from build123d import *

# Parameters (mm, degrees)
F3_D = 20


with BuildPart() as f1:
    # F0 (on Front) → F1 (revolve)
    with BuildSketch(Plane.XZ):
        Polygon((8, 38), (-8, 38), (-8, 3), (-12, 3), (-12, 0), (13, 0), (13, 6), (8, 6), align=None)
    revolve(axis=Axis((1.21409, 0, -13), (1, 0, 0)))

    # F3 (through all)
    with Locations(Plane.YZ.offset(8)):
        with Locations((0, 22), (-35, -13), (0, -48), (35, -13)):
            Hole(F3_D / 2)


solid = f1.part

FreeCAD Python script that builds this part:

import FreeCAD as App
import Part
import Sketcher
from FreeCAD import Vector
Q = App.Units.Quantity


def add_polygon(sketch, points):
    """Adds a closed chain of lines whose ends are joined by coincident constraints."""
    first, n = sketch.GeometryCount, len(points)
    for a, b in zip(points, points[1:] + points[:1]):
        sketch.addGeometry(Part.LineSegment(App.Vector(*a, 0), App.Vector(*b, 0)), False)
    for i in range(n):
        sketch.addConstraint(Sketcher.Constraint("Coincident", first + i, 2, first + (i + 1) % n, 1))

doc = App.newDocument("Part")
body = doc.addObject("PartDesign::Body", "Body")

# Sketch on XZ plane
sketch1 = doc.addObject("Sketcher::SketchObject", "Sketch")
body.addObject(sketch1)
sketch1.AttachmentSupport = (doc.XZ_Plane, [""])
sketch1.MapMode = "FlatFace"
add_polygon(sketch1, [(8, 38), (-8, 38), (-8, 3), (-12, 3), (-12, 0), (13, 0), (13, 6), (8, 6)])  # lines 0-7
sketch1.addGeometry(Part.LineSegment(Vector(-12, -13, 0), Vector(13, -13, 0)), True)  # axis
sketch1.addConstraint([
    Sketcher.Constraint("Horizontal", 0),
    Sketcher.Constraint("Vertical", 1),
    Sketcher.Constraint("Horizontal", 2),
    Sketcher.Constraint("Vertical", 3),
    Sketcher.Constraint("Horizontal", 4),
    Sketcher.Constraint("Vertical", 5),
    Sketcher.Constraint("Horizontal", 6),
    Sketcher.Constraint("Vertical", 7),
    Sketcher.Constraint("Horizontal", 8),
    Sketcher.Constraint("PointOnObject", 3, 2, -1),
    Sketcher.Constraint("Vertical", 3, 2, 8, 1),
    Sketcher.Constraint("Vertical", 5, 2, 8, 2),
    Sketcher.Constraint("DistanceX", 0, 2, 0, 1, Q("16 mm")),
    Sketcher.Constraint("DistanceX", 2, 2, 2, 1, Q("4 mm")),
    Sketcher.Constraint("DistanceX", 4, 1, 4, 2, Q("25 mm")),
    Sketcher.Constraint("DistanceY", 1, 2, 1, 1, Q("35 mm")),
    Sketcher.Constraint("DistanceY", 3, 2, 3, 1, Q("3 mm")),
    Sketcher.Constraint("DistanceY", 5, 1, 5, 2, Q("6 mm")),
    Sketcher.Constraint("DistanceX", 0, 2, -1, 1, Q("8 mm")),
    Sketcher.Constraint("DistanceY", 8, 1, -1, 1, Q("13 mm")),
])
revolution = doc.addObject("PartDesign::Revolution", "Revolution")
body.addObject(revolution)
revolution.Profile = sketch1
revolution.ReferenceAxis = (sketch1, ["Axis0"])
revolution.Angle = 360

# Sketch on YZ plane
sketch2 = doc.addObject("Sketcher::SketchObject", "Sketch001")
body.addObject(sketch2)
sketch2.AttachmentSupport = (doc.YZ_Plane, [""])
sketch2.MapMode = "FlatFace"
sketch2.AttachmentOffset = App.Placement(Vector(0, 0, 8), App.Rotation())
sketch2.addGeometry([
    Part.Circle(Vector(0, 22, 0), Vector(0, 0, 1), 10),
    Part.Circle(Vector(-35, -13, 0), Vector(0, 0, 1), 10),
    Part.Circle(Vector(0, -48, 0), Vector(0, 0, 1), 10),
    Part.Circle(Vector(35, -13, 0), Vector(0, 0, 1), 10),
], False)
sketch2.addConstraint([
    Sketcher.Constraint("Equal", 0, 1),
    Sketcher.Constraint("Equal", 1, 2),
    Sketcher.Constraint("Equal", 2, 3),
    Sketcher.Constraint("Symmetric", 1, 3, 3, 3, -2),
    Sketcher.Constraint("PointOnObject", 0, 3, -2),
    Sketcher.Constraint("PointOnObject", 2, 3, -2),
    Sketcher.Constraint("Diameter", 0, Q("20 mm")),
    Sketcher.Constraint("DistanceY", -1, 1, 0, 3, Q("22 mm")),
    Sketcher.Constraint("DistanceX", 1, 3, -1, 1, Q("35 mm")),
    Sketcher.Constraint("DistanceY", 1, 3, -1, 1, Q("13 mm")),
    Sketcher.Constraint("DistanceY", 2, 3, -1, 1, Q("48 mm")),
])
doc.recompute()
hole = doc.addObject("PartDesign::Hole", "Hole")
body.addObject(hole)
hole.Profile = sketch2
hole.ThreadType = "None"
hole.Diameter = 20
hole.DepthType = "ThroughAll"

doc.recompute()
